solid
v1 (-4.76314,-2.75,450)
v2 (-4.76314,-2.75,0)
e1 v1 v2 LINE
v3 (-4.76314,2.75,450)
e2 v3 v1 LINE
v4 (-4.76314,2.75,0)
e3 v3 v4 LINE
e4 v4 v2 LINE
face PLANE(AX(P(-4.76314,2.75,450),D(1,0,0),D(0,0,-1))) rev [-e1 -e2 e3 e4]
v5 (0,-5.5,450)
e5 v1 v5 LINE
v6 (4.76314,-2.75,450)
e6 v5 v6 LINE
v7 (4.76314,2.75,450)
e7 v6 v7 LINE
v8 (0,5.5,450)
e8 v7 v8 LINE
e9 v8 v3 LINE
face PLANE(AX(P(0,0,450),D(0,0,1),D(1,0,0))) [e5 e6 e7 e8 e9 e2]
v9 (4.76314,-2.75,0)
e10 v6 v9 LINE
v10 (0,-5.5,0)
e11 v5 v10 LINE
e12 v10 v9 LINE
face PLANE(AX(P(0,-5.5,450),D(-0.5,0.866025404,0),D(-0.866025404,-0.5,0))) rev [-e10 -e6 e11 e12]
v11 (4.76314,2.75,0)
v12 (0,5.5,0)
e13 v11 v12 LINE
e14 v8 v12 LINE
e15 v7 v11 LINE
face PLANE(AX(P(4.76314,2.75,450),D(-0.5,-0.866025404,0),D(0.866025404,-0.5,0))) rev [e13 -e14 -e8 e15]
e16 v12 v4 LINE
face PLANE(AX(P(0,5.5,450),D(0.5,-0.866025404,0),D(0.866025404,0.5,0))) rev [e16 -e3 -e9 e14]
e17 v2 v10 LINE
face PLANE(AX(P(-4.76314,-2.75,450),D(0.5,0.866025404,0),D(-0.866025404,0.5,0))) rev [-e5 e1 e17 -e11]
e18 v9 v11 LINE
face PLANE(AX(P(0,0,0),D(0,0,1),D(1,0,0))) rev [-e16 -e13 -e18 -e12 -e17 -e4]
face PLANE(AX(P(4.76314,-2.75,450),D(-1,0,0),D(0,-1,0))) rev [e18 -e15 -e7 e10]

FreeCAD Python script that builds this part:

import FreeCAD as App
import Part
import Sketcher

V = App.Vector
Q = App.Units.Quantity


def add_polygon(sketch, points):
    """Adds a closed chain of lines whose ends are joined by coincident constraints."""
    first, n = sketch.GeometryCount, len(points)
    for a, b in zip(points, points[1:] + points[:1]):
        sketch.addGeometry(Part.LineSegment(App.Vector(*a, 0), App.Vector(*b, 0)), False)
    for i in range(n):
        sketch.addConstraint(Sketcher.Constraint("Coincident", first + i, 2, first + (i + 1) % n, 1))

doc = App.newDocument("Part")
params = doc.addObject("Spreadsheet::Sheet", "Params")
for row, (alias, value) in enumerate([
    ("sketch1_height", "5.5 mm"),
    ("pad1_length", "450 mm"),
], start=1):
    params.set(f"A{row}", alias)
    params.set(f"B{row}", "=" + value)
    params.setAlias(f"B{row}", alias)

body = doc.addObject("PartDesign::Body", "Body")

# Sketch on XY plane
sketch1 = doc.addObject("Sketcher::SketchObject", "Sketch")
body.addObject(sketch1)
sketch1.AttachmentSupport = (doc.XY_Plane, [""])
sketch1.MapMode = "FlatFace"
add_polygon(sketch1, [(0, -6), (5, -3), (5, 3), (0, 6), (-5, 3), (-5, -3)])  # lines 0-5
sketch1.addConstraint(Sketcher.Constraint("Vertical", 1))
sketch1.addConstraint(Sketcher.Constraint("Vertical", 4))
sketch1.addConstraint(Sketcher.Constraint("Symmetric", 0, 2, 3, 2, -1, 1))
sketch1.addConstraint(Sketcher.Constraint("Symmetric", 2, 2, 5, 2, -1, 1))
sketch1.addConstraint(Sketcher.Constraint("PointOnObject", 2, 2, -2))
sketch1.addConstraint(Sketcher.Constraint("Parallel", 2, 5))
sketch1.addConstraint(Sketcher.Constraint("Horizontal", 1, 2, 3, 2))
sketch1.addConstraint(Sketcher.Constraint("Angle", 0, Q("30 deg")))
sketch1.addConstraint(Sketcher.Constraint("DistanceY", 1, 1, 1, 2, 5.5))
sketch1.addConstraint(Sketcher.Constraint("DistanceY", 5, 2, 2, 2, 11.0))
sketch1.setExpression("Constraints[14]", "Params.sketch1_height")
pad1 = doc.addObject("PartDesign::Pad", "Pad")
body.addObject(pad1)
pad1.Profile = sketch1
pad1.setExpression("Length", "Params.pad1_length")

doc.recompute()
